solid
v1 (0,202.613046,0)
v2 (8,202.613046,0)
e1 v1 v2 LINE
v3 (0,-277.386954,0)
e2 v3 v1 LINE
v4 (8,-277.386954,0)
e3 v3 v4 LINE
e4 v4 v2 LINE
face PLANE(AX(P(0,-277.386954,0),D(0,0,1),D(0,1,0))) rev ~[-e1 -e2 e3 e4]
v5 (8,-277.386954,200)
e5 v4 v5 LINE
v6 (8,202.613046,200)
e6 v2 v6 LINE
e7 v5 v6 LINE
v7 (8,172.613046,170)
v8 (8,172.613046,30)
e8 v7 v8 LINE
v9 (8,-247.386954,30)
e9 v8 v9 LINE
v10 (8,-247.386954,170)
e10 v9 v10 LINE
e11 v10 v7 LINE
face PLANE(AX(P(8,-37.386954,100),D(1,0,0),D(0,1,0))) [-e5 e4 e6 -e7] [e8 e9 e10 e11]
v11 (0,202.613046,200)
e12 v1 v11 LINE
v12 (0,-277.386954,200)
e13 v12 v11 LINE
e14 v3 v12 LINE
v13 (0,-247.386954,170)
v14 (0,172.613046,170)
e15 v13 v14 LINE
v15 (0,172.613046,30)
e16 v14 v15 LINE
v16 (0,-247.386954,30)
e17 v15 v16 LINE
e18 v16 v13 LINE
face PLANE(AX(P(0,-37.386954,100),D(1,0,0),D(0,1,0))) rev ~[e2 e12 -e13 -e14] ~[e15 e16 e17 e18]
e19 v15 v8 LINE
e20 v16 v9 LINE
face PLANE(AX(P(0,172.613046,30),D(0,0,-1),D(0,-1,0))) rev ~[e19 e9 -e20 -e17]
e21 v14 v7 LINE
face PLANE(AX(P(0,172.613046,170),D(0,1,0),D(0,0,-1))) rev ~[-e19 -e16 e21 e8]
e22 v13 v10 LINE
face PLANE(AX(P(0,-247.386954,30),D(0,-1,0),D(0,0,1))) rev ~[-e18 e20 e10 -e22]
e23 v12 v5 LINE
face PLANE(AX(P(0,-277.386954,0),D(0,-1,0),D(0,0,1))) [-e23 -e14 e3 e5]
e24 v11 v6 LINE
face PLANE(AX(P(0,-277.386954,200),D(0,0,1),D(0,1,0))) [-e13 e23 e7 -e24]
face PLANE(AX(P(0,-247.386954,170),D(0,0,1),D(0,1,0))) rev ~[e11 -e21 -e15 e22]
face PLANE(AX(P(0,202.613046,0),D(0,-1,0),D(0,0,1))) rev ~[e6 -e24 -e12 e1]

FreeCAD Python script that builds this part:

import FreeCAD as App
import Part
import Sketcher

V = App.Vector

doc = App.newDocument("Part")
params = doc.addObject("Spreadsheet::Sheet", "Params")
for row, (alias, value) in enumerate([
    ("sketch1_width", "480 mm"),
    ("sketch1_width2", "420 mm"),
    ("sketch1_height", "200 mm"),
    ("sketch1_height2", "140 mm"),
    ("pad1_length", "8 mm"),
], start=1):
    params.set(f"A{row}", alias)
    params.set(f"B{row}", "=" + value)
    params.setAlias(f"B{row}", alias)

body = doc.addObject("PartDesign::Body", "Body")

# Sketch on YZ plane
sketch1 = doc.addObject("Sketcher::SketchObject", "Sketch")
body.addObject(sketch1)
sketch1.AttachmentSupport = (doc.YZ_Plane, [""])
sketch1.MapMode = "FlatFace"
sketch1.addGeometry([
    Part.LineSegment(V(-277, 200, 0), V(-277, 0, 0)),  # 0
    Part.LineSegment(V(-277, 0, 0), V(203, 0, 0)),  # 1
    Part.LineSegment(V(203, 0, 0), V(203, 200, 0)),  # 2
    Part.LineSegment(V(203, 200, 0), V(-277, 200, 0)),  # 3
    Part.LineSegment(V(173, 30, 0), V(-247, 30, 0)),  # 4
    Part.LineSegment(V(-247, 30, 0), V(-247, 170, 0)),  # 5
    Part.LineSegment(V(-247, 170, 0), V(173, 170, 0)),  # 6
    Part.LineSegment(V(173, 170, 0), V(173, 30, 0)),  # 7
], False)
sketch1.addConstraint([
    Sketcher.Constraint("Coincident", 0, 2, 1, 1),
    Sketcher.Constraint("Coincident", 1, 2, 2, 1),
    Sketcher.Constraint("Coincident", 2, 2, 3, 1),
    Sketcher.Constraint("Coincident", 3, 2, 0, 1),
    Sketcher.Constraint("Coincident", 4, 2, 5, 1),
    Sketcher.Constraint("Coincident", 5, 2, 6, 1),
    Sketcher.Constraint("Coincident", 6, 2, 7, 1),
    Sketcher.Constraint("Coincident", 7, 2, 4, 1),
    Sketcher.Constraint("Vertical", 0),
    Sketcher.Constraint("Horizontal", 1),
    Sketcher.Constraint("Vertical", 2),
    Sketcher.Constraint("Horizontal", 3),
    Sketcher.Constraint("Horizontal", 4),
    Sketcher.Constraint("Vertical", 5),
    Sketcher.Constraint("Horizontal", 6),
    Sketcher.Constraint("Vertical", 7),
    Sketcher.Constraint("PointOnObject", 0, 2, -1),
    Sketcher.Constraint("DistanceX", 1, 1, 1, 2, 480.0),
    Sketcher.Constraint("DistanceX", 4, 2, 4, 1, 420.0),
    Sketcher.Constraint("DistanceY", 0, 2, 0, 1, 200.0),
    Sketcher.Constraint("DistanceY", 5, 1, 5, 2, 140.0),
    Sketcher.Constraint("DistanceY", -1, 1, 4, 2, 30.0),
    Sketcher.Constraint("DistanceX", 0, 2, 4, 2, 30.0),
    Sketcher.Constraint("DistanceX", 0, 2, -1, 1, 277.386954),
])
sketch1.setExpression("Constraints[17]", "Params.sketch1_width")
sketch1.setExpression("Constraints[18]", "Params.sketch1_width2")
sketch1.setExpression("Constraints[19]", "Params.sketch1_height")
sketch1.setExpression("Constraints[20]", "Params.sketch1_height2")
pad1 = doc.addObject("PartDesign::Pad", "Pad")
body.addObject(pad1)
pad1.Profile = sketch1
pad1.setExpression("Length", "Params.pad1_length")

doc.recompute()
